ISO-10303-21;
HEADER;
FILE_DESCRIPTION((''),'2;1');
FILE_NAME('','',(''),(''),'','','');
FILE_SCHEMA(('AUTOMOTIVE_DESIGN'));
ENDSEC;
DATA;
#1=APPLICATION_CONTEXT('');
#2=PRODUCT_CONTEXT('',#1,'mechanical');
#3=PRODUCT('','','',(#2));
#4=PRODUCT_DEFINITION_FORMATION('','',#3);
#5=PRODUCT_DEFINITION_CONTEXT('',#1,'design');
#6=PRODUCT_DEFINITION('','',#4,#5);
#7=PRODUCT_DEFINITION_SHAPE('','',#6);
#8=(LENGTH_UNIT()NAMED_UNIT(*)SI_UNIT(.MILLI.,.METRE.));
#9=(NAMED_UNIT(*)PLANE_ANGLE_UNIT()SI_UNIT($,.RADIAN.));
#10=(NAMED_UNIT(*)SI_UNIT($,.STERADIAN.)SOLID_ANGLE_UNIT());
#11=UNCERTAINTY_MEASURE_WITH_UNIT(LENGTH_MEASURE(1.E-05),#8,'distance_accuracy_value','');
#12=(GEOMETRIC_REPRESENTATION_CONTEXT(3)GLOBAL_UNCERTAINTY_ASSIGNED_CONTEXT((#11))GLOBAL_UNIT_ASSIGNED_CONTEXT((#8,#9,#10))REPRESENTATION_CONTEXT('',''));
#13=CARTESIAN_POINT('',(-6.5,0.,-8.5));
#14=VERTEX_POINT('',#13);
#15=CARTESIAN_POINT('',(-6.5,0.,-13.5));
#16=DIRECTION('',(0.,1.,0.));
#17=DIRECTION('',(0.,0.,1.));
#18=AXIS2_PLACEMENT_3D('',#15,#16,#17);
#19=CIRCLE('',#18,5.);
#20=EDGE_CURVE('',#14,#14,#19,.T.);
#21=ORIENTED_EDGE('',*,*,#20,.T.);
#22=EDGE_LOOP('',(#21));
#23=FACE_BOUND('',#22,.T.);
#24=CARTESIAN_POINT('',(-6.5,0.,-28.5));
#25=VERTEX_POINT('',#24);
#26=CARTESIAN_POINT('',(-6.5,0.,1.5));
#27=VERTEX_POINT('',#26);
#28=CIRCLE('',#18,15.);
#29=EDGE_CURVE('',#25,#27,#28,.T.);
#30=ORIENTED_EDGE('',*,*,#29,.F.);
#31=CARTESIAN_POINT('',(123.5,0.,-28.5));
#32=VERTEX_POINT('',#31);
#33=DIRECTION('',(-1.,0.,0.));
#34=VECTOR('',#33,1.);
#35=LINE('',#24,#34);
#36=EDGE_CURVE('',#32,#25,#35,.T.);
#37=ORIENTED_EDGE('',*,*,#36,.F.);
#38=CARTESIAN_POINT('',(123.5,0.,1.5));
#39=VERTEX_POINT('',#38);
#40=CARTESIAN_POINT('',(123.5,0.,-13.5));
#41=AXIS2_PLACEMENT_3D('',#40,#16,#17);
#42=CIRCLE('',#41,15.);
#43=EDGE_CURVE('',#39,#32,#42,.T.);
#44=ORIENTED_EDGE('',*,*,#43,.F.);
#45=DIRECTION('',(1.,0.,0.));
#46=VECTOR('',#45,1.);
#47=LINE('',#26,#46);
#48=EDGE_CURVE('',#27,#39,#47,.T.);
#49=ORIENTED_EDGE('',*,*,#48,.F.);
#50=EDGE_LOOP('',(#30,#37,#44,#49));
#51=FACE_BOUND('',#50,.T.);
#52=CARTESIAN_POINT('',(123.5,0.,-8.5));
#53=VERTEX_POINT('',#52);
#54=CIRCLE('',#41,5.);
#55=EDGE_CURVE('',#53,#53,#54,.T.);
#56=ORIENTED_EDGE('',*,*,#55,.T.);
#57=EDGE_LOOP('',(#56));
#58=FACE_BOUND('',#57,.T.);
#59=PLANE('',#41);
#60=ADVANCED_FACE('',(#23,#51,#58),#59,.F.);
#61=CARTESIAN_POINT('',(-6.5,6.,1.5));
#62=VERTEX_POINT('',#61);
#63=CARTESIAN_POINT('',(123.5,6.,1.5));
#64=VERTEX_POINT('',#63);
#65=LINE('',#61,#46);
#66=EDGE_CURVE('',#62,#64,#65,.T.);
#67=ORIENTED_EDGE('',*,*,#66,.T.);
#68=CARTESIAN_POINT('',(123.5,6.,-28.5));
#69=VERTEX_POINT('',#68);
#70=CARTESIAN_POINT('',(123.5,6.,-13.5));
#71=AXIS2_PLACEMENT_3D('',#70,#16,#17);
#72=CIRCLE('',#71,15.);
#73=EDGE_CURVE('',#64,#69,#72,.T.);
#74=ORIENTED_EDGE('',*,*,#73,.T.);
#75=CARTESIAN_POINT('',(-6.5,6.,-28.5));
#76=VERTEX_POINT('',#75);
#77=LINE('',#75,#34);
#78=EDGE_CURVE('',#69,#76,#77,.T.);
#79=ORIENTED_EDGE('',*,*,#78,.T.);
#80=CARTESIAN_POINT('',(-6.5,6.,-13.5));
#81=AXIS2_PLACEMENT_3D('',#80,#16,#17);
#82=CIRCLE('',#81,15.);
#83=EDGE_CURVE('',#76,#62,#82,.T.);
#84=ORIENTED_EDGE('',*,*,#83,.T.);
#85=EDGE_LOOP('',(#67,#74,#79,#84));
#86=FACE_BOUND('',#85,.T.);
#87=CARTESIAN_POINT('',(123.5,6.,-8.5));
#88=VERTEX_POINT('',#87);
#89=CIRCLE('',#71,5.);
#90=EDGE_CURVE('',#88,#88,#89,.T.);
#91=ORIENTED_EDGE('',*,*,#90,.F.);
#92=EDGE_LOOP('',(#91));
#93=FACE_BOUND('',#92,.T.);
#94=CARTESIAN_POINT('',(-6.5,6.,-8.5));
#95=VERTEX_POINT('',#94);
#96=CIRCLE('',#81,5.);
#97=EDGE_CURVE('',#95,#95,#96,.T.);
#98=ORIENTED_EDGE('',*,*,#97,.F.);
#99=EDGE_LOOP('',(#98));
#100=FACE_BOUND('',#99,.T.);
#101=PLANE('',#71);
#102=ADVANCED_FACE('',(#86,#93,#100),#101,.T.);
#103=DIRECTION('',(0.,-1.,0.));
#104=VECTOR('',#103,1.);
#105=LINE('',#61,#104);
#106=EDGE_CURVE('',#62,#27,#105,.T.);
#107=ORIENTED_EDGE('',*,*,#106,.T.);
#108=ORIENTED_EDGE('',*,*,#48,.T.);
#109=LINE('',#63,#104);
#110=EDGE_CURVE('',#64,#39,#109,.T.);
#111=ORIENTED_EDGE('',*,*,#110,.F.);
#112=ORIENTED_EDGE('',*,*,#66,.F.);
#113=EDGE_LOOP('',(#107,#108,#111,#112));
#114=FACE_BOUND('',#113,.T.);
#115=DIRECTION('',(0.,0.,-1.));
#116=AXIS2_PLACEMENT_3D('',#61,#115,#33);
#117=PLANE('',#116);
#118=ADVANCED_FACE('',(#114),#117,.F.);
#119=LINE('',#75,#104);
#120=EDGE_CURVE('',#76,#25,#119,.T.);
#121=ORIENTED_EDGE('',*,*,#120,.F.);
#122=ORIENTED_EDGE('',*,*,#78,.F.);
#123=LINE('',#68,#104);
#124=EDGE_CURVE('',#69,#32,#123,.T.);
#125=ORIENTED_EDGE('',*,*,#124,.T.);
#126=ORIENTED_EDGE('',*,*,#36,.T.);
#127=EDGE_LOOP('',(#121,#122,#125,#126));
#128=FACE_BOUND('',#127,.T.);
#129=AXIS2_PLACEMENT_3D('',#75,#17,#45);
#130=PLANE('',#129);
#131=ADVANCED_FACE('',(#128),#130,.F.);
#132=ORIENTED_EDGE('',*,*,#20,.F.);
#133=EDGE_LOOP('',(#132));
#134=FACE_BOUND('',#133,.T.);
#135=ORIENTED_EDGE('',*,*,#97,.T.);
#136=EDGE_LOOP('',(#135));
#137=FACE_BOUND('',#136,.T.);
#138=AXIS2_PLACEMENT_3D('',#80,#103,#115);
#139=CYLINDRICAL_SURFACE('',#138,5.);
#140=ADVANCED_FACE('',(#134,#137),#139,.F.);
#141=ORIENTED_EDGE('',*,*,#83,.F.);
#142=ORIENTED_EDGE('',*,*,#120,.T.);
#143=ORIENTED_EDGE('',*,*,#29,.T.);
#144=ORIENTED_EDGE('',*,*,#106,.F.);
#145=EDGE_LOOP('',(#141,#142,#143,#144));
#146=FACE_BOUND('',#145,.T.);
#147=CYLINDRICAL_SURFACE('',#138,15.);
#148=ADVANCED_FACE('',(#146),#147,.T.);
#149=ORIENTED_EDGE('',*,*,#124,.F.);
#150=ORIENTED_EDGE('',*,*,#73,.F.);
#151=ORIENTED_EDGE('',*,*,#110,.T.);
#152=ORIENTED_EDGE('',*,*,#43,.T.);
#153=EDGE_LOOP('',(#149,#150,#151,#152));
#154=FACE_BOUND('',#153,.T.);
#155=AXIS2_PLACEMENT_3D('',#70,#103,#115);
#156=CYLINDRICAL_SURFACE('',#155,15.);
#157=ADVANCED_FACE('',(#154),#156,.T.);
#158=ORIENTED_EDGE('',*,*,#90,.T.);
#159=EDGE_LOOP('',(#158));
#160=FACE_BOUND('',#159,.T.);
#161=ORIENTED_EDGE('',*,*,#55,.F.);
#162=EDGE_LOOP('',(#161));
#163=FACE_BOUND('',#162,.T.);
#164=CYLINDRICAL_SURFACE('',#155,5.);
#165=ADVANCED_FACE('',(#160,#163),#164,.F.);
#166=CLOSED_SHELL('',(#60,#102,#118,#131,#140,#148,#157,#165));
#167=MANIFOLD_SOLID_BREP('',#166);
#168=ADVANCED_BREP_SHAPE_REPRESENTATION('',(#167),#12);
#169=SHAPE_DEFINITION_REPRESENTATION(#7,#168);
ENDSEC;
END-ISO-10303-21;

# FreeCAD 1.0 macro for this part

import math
import FreeCAD as App
import Part
import Sketcher

doc = App.newDocument("Part")
body = doc.addObject("PartDesign::Body", "Body")

sketch1 = body.newObject("Sketcher::SketchObject", "Sketch")
sketch1.AttachmentSupport = (doc.getObject("XZ_Plane"), [""])
sketch1.MapMode = "FlatFace"
sketch1.addGeometry([
    Part.LineSegment(App.Vector(124, -28, 0), App.Vector(-6, -28, 0)),
    Part.ArcOfCircle(Part.Circle(App.Vector(-6, -14, 0), App.Vector(0, 0, 1), 15), math.radians(90), math.radians(270)),
    Part.LineSegment(App.Vector(-6, 2, 0), App.Vector(124, 2, 0)),
    Part.ArcOfCircle(Part.Circle(App.Vector(124, -14, 0), App.Vector(0, 0, 1), 15), math.radians(-90), math.radians(90)),
    Part.Circle(App.Vector(124, -14, 0), App.Vector(0, 0, 1), 5),
    Part.Circle(App.Vector(-6, -14, 0), App.Vector(0, 0, 1), 5),
], False)
sketch1.addConstraint([
    Sketcher.Constraint("Tangent", 0, 2, 1, 2),
    Sketcher.Constraint("Tangent", 1, 1, 2, 1),
    Sketcher.Constraint("Tangent", 2, 2, 3, 2),
    Sketcher.Constraint("Tangent", 3, 1, 0, 1),
    Sketcher.Constraint("Horizontal", 0),
    Sketcher.Constraint("Horizontal", 2),
    Sketcher.Constraint("Coincident", 4, 3, 3, 3),
    Sketcher.Constraint("Coincident", 5, 3, 1, 3),
    Sketcher.Constraint("Equal", 4, 5),
    Sketcher.Constraint("Diameter", 4, 10.0),
    Sketcher.Constraint("Radius", 1, 15.0),
    Sketcher.Constraint("DistanceX", 0, 2, 0, 1, 130.0),
    Sketcher.Constraint("DistanceX", 1, 3, -1, 1, 6.5),
    Sketcher.Constraint("DistanceY", 1, 3, -1, 1, 13.5),
])
pad1 = body.newObject("PartDesign::Pad", "Pad")
pad1.Profile = sketch1
pad1.Length = 6
pad1.Reversed = True

doc.recompute()
